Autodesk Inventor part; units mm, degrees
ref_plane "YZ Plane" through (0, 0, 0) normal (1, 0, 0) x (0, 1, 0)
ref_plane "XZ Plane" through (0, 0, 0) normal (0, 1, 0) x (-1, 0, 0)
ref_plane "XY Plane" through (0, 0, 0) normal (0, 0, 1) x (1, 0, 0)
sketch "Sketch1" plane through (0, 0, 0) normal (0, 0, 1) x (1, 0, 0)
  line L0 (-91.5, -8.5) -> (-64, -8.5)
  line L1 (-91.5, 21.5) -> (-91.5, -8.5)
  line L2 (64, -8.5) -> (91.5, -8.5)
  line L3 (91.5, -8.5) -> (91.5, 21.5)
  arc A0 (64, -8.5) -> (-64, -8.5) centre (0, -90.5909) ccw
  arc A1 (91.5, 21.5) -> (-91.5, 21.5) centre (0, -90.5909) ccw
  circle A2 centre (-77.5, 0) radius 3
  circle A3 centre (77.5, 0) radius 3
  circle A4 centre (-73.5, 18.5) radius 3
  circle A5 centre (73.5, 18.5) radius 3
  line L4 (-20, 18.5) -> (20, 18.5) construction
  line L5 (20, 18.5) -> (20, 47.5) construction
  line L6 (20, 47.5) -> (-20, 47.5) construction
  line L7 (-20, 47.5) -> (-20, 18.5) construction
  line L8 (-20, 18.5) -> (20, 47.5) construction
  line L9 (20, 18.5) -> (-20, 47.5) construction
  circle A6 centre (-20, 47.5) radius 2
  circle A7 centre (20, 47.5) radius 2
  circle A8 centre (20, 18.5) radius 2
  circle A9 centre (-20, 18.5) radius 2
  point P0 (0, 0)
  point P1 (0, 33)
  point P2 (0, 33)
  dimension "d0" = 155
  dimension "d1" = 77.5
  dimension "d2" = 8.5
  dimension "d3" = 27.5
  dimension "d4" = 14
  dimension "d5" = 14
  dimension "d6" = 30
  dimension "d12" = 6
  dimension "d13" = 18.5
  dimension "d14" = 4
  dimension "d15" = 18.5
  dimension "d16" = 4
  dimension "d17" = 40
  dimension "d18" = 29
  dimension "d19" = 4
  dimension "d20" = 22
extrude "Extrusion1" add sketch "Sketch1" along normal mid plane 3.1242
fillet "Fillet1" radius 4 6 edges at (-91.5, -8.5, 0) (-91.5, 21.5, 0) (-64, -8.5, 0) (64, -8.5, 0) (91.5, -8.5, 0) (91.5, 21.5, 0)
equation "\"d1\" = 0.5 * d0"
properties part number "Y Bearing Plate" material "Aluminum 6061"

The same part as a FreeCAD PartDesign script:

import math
import FreeCAD as App
import Part
import Sketcher
from FreeCAD import Vector


def edges_at(feature, points):
    """Names of the edges that pass closest to the given points."""
    edges = feature.Shape.Edges
    near = lambda p: min(range(len(edges)), key=lambda i: edges[i].distToShape(Part.Vertex(*p))[0])
    return sorted({f"Edge{near(p) + 1}" for p in points})

doc = App.newDocument("Part")
body = doc.addObject("PartDesign::Body", "Body")

sketch1 = doc.addObject("Sketcher::SketchObject", "Sketch")
body.addObject(sketch1)
sketch1.AttachmentSupport = (doc.XY_Plane, [""])
sketch1.MapMode = "FlatFace"
sketch1.addGeometry(Part.LineSegment(Vector(-91.5, 21.5, 0), Vector(-91.5, -8.5, 0)), False)
sketch1.addGeometry(Part.LineSegment(Vector(-91.5, -8.5, 0), Vector(-64, -8.5, 0)), False)
sketch1.addGeometry(Part.ArcOfCircle(Part.Circle(Vector(0, -90.6, 0), Vector(0, 0, 1), 104.1), math.radians(52), math.radians(128)), False)
sketch1.addGeometry(Part.LineSegment(Vector(64, -8.5, 0), Vector(91.5, -8.5, 0)), False)
sketch1.addGeometry(Part.LineSegment(Vector(91.5, -8.5, 0), Vector(91.5, 21.5, 0)), False)
sketch1.addGeometry(Part.ArcOfCircle(Part.Circle(Vector(0, -90.6, 0), Vector(0, 0, 1), 144.7), math.radians(51), math.radians(129)), False)
sketch1.addGeometry(Part.Circle(Vector(-77.5, 0, 0), Vector(0, 0, 1), 3), False)
sketch1.addGeometry(Part.Circle(Vector(-73.5, 18.5, 0), Vector(0, 0, 1), 3), False)
sketch1.addGeometry(Part.Circle(Vector(-20, 18.5, 0), Vector(0, 0, 1), 2), False)
sketch1.addGeometry(Part.Circle(Vector(77.5, 0, 0), Vector(0, 0, 1), 3), False)
sketch1.addGeometry(Part.Circle(Vector(20, 18.5, 0), Vector(0, 0, 1), 2), False)
sketch1.addGeometry(Part.Circle(Vector(73.5, 18.5, 0), Vector(0, 0, 1), 3), False)
sketch1.addGeometry(Part.Circle(Vector(-20, 47.5, 0), Vector(0, 0, 1), 2), False)
sketch1.addGeometry(Part.Circle(Vector(20, 47.5, 0), Vector(0, 0, 1), 2), False)
sketch1.addConstraint(Sketcher.Constraint("Coincident", 0, 2, 1, 1))
sketch1.addConstraint(Sketcher.Constraint("Coincident", 1, 2, 2, 2))
sketch1.addConstraint(Sketcher.Constraint("Coincident", 2, 1, 3, 1))
sketch1.addConstraint(Sketcher.Constraint("Coincident", 3, 2, 4, 1))
sketch1.addConstraint(Sketcher.Constraint("Coincident", 4, 2, 5, 1))
sketch1.addConstraint(Sketcher.Constraint("Coincident", 5, 2, 0, 1))
sketch1.addConstraint(Sketcher.Constraint("Vertical", 0))
sketch1.addConstraint(Sketcher.Constraint("Horizontal", 1))
sketch1.addConstraint(Sketcher.Constraint("Horizontal", 3))
sketch1.addConstraint(Sketcher.Constraint("Vertical", 4))
sketch1.addConstraint(Sketcher.Constraint("Coincident", 5, 3, 2, 3))
sketch1.addConstraint(Sketcher.Constraint("Equal", 6, 7))
sketch1.addConstraint(Sketcher.Constraint("Equal", 7, 9))
sketch1.addConstraint(Sketcher.Constraint("Equal", 8, 10))
sketch1.addConstraint(Sketcher.Constraint("Equal", 9, 11))
sketch1.addConstraint(Sketcher.Constraint("Equal", 10, 12))
sketch1.addConstraint(Sketcher.Constraint("Equal", 12, 13))
sketch1.addConstraint(Sketcher.Constraint("Symmetric", 6, 3, 9, 3, -1, 1))
sketch1.addConstraint(Sketcher.Constraint("Symmetric", 8, 3, 10, 3, -2))
sketch1.addConstraint(Sketcher.Constraint("Symmetric", 7, 3, 11, 3, -2))
sketch1.addConstraint(Sketcher.Constraint("Symmetric", 12, 3, 13, 3, -2))
sketch1.addConstraint(Sketcher.Constraint("Symmetric", 1, 2, 2, 1, -2))
sketch1.addConstraint(Sketcher.Constraint("PointOnObject", 6, 3, -1))
sketch1.addConstraint(Sketcher.Constraint("Horizontal", 7, 3, 8, 3))
sketch1.addConstraint(Sketcher.Constraint("Horizontal", 4, 2, 5, 2))
sketch1.addConstraint(Sketcher.Constraint("Vertical", 8, 3, 12, 3))
sketch1.addConstraint(Sketcher.Constraint("Diameter", 6, 6.0))
sketch1.addConstraint(Sketcher.Constraint("Diameter", 8, 4.0))
sketch1.addConstraint(Sketcher.Constraint("DistanceY", 0, 2, 0, 1, 30.0))
sketch1.addConstraint(Sketcher.Constraint("DistanceX", 1, 1, 1, 2, 27.5))
sketch1.addConstraint(Sketcher.Constraint("DistanceX", 6, 3, 7, 3, 4.0))
sketch1.addConstraint(Sketcher.Constraint("DistanceX", 6, 3, 9, 3, 155.0))
sketch1.addConstraint(Sketcher.Constraint("DistanceX", 8, 3, 10, 3, 40.0))
sketch1.addConstraint(Sketcher.Constraint("DistanceY", 8, 3, 12, 3, 29.0))
sketch1.addConstraint(Sketcher.Constraint("DistanceX", 0, 2, 6, 3, 14.0))
sketch1.addConstraint(Sketcher.Constraint("DistanceY", -1, 1, 7, 3, 18.5))
sketch1.addConstraint(Sketcher.Constraint("DistanceY", 0, 2, -1, 1, 8.5))
sketch1.addConstraint(Sketcher.Constraint("Radius", 2, 104.091))
pad1 = doc.addObject("PartDesign::Pad", "Pad")
body.addObject(pad1)
pad1.Profile = sketch1
pad1.Length = 3.1242
pad1.Midplane = True
doc.recompute()

fillet = doc.addObject("PartDesign::Fillet", "Fillet")
body.addObject(fillet)
fillet.Base = (pad1, edges_at(pad1, [
    (-91.5, -8.5, 0),
    (-91.5, 21.5, 0),
    (-64, -8.5, 0),
    (64, -8.5, 0),
    (91.5, -8.5, 0),
    (91.5, 21.5, 0),
]))
fillet.Radius = 4

doc.recompute()
